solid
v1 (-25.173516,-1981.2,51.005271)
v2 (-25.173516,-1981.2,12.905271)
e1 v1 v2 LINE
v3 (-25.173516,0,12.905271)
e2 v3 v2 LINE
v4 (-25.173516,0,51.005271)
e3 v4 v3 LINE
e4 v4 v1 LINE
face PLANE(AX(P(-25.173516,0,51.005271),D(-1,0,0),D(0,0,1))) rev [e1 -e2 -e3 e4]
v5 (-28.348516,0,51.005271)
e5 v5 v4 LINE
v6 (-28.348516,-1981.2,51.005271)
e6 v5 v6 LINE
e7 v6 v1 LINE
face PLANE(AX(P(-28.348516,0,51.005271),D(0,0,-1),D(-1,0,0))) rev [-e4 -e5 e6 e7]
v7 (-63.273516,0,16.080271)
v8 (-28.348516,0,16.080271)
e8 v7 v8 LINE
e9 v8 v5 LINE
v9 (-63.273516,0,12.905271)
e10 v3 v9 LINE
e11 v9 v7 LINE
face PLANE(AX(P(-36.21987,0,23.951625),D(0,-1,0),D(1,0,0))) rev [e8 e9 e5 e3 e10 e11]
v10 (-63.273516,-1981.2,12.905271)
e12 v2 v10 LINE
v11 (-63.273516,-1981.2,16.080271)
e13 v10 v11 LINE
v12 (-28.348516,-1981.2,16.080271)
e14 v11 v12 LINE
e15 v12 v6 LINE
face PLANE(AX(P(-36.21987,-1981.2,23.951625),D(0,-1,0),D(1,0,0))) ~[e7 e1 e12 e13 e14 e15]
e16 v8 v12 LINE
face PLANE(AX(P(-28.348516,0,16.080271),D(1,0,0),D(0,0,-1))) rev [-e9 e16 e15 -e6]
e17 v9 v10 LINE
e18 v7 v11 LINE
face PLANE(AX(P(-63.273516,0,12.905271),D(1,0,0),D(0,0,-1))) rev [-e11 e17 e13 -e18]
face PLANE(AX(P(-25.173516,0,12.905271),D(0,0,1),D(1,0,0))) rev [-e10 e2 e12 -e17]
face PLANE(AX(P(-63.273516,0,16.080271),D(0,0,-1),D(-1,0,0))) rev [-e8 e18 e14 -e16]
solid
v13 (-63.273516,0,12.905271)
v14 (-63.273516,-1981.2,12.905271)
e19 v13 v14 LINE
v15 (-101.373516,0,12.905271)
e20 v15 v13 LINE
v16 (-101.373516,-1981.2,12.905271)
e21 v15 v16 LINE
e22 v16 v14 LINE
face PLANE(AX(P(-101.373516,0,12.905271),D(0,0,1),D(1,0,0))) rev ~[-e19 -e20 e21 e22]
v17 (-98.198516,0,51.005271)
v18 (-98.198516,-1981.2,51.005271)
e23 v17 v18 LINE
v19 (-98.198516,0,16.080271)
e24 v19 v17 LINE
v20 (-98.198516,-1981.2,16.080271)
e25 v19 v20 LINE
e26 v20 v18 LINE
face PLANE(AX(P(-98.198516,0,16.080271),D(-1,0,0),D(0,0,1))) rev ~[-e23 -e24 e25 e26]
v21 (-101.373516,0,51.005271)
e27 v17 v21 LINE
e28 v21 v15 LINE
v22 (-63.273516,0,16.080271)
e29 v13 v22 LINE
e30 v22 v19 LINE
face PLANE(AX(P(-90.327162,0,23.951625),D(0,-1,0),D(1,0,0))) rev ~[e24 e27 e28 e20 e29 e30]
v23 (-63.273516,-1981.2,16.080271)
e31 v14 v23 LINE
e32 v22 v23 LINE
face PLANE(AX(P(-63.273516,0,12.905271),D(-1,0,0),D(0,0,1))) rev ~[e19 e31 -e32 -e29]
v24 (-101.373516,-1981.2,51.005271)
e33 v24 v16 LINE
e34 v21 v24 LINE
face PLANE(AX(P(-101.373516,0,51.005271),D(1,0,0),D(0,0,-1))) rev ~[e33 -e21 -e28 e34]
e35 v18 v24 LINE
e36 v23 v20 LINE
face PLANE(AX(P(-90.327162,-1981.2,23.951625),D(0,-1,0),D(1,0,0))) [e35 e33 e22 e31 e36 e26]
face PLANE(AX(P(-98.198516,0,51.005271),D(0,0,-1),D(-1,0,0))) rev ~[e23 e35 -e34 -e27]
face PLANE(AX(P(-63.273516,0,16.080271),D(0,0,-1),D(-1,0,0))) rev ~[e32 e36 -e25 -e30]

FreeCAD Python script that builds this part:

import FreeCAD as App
import Part
import Sketcher
Q = App.Units.Quantity

doc = App.newDocument("Part")
body = doc.addObject("PartDesign::Body", "Body")

# Sketch on XZ plane
sketch1 = body.newObject("Sketcher::SketchObject", "Sketch")
sketch1.AttachmentSupport = (doc.getObject("XZ_Plane"), [""])
sketch1.MapMode = "FlatFace"
sketch1.addGeometry([
    Part.LineSegment(App.Vector(-98.2, 51, 0), App.Vector(-101.4, 51, 0)),  # 0
    Part.LineSegment(App.Vector(-101.4, 51, 0), App.Vector(-101.4, 12.9, 0)),  # 1
    Part.LineSegment(App.Vector(-101.4, 12.9, 0), App.Vector(-63.3, 12.9, 0)),  # 2
    Part.LineSegment(App.Vector(-63.3, 12.9, 0), App.Vector(-63.3, 16.1, 0)),  # 3
    Part.LineSegment(App.Vector(-63.3, 16.1, 0), App.Vector(-98.2, 16.1, 0)),  # 4
    Part.LineSegment(App.Vector(-98.2, 16.1, 0), App.Vector(-98.2, 51, 0)),  # 5
], False)
sketch1.addConstraint([
    Sketcher.Constraint("Coincident", 0, 2, 1, 1),
    Sketcher.Constraint("Coincident", 1, 2, 2, 1),
    Sketcher.Constraint("Coincident", 2, 2, 3, 1),
    Sketcher.Constraint("Coincident", 3, 2, 4, 1),
    Sketcher.Constraint("Coincident", 4, 2, 5, 1),
    Sketcher.Constraint("Coincident", 5, 2, 0, 1),
    Sketcher.Constraint("Horizontal", 0),
    Sketcher.Constraint("Vertical", 1),
    Sketcher.Constraint("Horizontal", 2),
    Sketcher.Constraint("Vertical", 3),
    Sketcher.Constraint("Horizontal", 4),
    Sketcher.Constraint("Vertical", 5),
    Sketcher.Constraint("Equal", 2, 1),
    Sketcher.Constraint("Equal", 0, 3),
    Sketcher.Constraint("DistanceX", 2, 1, 2, 2, Q("1.5 in")),
    Sketcher.Constraint("DistanceX", 0, 2, 0, 1, Q("0.125 in")),
    Sketcher.Constraint("DistanceY", -1, 1, 0, 2, Q("51.005271 mm")),
    Sketcher.Constraint("DistanceX", 0, 2, -1, 1, Q("101.373516 mm")),
])
pad1 = body.newObject("PartDesign::Pad", "Pad")
pad1.Profile = sketch1
pad1.Length = Q("78 in")
body2 = doc.addObject("PartDesign::Body", "Body001")
doc.recompute()

mirroring = doc.addObject("Part::Mirroring", "Mirroring")
mirroring.Source = body
mirroring.Base = App.Vector(-63.273516, -990.6, 14.492771)
mirroring.Normal = App.Vector(1, 0, 0)
body2.BaseFeature = mirroring
doc.recompute()
mirroring.Visibility = False

doc.recompute()
